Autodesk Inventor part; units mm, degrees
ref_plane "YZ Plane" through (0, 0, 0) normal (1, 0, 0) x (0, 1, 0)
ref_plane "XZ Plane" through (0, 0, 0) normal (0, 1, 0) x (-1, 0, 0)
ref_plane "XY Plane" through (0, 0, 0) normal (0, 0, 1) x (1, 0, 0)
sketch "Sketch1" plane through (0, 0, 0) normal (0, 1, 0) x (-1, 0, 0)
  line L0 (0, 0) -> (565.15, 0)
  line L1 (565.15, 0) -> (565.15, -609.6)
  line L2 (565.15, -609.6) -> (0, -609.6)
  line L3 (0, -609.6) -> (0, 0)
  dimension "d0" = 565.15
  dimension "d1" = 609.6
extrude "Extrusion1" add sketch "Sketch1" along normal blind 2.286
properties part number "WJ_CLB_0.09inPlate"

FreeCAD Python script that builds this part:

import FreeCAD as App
import Part
import Sketcher
from FreeCAD import Vector
Q = App.Units.Quantity


def add_polygon(sketch, points):
    """Adds a closed chain of lines whose ends are joined by coincident constraints."""
    first, n = sketch.GeometryCount, len(points)
    for a, b in zip(points, points[1:] + points[:1]):
        sketch.addGeometry(Part.LineSegment(App.Vector(*a, 0), App.Vector(*b, 0)), False)
    for i in range(n):
        sketch.addConstraint(Sketcher.Constraint("Coincident", first + i, 2, first + (i + 1) % n, 1))

doc = App.newDocument("Part")
body = doc.addObject("PartDesign::Body", "Body")

# Sketch on XZ plane
sketch1 = body.newObject("Sketcher::SketchObject", "Sketch")
sketch1.AttachmentSupport = (doc.getObject("XZ_Plane"), [""])
sketch1.MapMode = "FlatFace"
add_polygon(sketch1, [(-565, 0), (0, 0), (0, -610), (-565, -610)])  # lines 0-3
sketch1.addConstraint([
    Sketcher.Constraint("Horizontal", 0),
    Sketcher.Constraint("Vertical", 1),
    Sketcher.Constraint("Horizontal", 2),
    Sketcher.Constraint("Vertical", 3),
    Sketcher.Constraint("Coincident", 0, 2, -1, 1),
    Sketcher.Constraint("DistanceY", 1, 2, 1, 1, Q("24 in")),
    Sketcher.Constraint("DistanceX", 0, 1, 0, 2, Q("22.25 in")),
])
pad1 = body.newObject("PartDesign::Pad", "Pad")
pad1.Profile = sketch1
pad1.Length = Q("0.09 in")
pad1.Reversed = True

doc.recompute()
